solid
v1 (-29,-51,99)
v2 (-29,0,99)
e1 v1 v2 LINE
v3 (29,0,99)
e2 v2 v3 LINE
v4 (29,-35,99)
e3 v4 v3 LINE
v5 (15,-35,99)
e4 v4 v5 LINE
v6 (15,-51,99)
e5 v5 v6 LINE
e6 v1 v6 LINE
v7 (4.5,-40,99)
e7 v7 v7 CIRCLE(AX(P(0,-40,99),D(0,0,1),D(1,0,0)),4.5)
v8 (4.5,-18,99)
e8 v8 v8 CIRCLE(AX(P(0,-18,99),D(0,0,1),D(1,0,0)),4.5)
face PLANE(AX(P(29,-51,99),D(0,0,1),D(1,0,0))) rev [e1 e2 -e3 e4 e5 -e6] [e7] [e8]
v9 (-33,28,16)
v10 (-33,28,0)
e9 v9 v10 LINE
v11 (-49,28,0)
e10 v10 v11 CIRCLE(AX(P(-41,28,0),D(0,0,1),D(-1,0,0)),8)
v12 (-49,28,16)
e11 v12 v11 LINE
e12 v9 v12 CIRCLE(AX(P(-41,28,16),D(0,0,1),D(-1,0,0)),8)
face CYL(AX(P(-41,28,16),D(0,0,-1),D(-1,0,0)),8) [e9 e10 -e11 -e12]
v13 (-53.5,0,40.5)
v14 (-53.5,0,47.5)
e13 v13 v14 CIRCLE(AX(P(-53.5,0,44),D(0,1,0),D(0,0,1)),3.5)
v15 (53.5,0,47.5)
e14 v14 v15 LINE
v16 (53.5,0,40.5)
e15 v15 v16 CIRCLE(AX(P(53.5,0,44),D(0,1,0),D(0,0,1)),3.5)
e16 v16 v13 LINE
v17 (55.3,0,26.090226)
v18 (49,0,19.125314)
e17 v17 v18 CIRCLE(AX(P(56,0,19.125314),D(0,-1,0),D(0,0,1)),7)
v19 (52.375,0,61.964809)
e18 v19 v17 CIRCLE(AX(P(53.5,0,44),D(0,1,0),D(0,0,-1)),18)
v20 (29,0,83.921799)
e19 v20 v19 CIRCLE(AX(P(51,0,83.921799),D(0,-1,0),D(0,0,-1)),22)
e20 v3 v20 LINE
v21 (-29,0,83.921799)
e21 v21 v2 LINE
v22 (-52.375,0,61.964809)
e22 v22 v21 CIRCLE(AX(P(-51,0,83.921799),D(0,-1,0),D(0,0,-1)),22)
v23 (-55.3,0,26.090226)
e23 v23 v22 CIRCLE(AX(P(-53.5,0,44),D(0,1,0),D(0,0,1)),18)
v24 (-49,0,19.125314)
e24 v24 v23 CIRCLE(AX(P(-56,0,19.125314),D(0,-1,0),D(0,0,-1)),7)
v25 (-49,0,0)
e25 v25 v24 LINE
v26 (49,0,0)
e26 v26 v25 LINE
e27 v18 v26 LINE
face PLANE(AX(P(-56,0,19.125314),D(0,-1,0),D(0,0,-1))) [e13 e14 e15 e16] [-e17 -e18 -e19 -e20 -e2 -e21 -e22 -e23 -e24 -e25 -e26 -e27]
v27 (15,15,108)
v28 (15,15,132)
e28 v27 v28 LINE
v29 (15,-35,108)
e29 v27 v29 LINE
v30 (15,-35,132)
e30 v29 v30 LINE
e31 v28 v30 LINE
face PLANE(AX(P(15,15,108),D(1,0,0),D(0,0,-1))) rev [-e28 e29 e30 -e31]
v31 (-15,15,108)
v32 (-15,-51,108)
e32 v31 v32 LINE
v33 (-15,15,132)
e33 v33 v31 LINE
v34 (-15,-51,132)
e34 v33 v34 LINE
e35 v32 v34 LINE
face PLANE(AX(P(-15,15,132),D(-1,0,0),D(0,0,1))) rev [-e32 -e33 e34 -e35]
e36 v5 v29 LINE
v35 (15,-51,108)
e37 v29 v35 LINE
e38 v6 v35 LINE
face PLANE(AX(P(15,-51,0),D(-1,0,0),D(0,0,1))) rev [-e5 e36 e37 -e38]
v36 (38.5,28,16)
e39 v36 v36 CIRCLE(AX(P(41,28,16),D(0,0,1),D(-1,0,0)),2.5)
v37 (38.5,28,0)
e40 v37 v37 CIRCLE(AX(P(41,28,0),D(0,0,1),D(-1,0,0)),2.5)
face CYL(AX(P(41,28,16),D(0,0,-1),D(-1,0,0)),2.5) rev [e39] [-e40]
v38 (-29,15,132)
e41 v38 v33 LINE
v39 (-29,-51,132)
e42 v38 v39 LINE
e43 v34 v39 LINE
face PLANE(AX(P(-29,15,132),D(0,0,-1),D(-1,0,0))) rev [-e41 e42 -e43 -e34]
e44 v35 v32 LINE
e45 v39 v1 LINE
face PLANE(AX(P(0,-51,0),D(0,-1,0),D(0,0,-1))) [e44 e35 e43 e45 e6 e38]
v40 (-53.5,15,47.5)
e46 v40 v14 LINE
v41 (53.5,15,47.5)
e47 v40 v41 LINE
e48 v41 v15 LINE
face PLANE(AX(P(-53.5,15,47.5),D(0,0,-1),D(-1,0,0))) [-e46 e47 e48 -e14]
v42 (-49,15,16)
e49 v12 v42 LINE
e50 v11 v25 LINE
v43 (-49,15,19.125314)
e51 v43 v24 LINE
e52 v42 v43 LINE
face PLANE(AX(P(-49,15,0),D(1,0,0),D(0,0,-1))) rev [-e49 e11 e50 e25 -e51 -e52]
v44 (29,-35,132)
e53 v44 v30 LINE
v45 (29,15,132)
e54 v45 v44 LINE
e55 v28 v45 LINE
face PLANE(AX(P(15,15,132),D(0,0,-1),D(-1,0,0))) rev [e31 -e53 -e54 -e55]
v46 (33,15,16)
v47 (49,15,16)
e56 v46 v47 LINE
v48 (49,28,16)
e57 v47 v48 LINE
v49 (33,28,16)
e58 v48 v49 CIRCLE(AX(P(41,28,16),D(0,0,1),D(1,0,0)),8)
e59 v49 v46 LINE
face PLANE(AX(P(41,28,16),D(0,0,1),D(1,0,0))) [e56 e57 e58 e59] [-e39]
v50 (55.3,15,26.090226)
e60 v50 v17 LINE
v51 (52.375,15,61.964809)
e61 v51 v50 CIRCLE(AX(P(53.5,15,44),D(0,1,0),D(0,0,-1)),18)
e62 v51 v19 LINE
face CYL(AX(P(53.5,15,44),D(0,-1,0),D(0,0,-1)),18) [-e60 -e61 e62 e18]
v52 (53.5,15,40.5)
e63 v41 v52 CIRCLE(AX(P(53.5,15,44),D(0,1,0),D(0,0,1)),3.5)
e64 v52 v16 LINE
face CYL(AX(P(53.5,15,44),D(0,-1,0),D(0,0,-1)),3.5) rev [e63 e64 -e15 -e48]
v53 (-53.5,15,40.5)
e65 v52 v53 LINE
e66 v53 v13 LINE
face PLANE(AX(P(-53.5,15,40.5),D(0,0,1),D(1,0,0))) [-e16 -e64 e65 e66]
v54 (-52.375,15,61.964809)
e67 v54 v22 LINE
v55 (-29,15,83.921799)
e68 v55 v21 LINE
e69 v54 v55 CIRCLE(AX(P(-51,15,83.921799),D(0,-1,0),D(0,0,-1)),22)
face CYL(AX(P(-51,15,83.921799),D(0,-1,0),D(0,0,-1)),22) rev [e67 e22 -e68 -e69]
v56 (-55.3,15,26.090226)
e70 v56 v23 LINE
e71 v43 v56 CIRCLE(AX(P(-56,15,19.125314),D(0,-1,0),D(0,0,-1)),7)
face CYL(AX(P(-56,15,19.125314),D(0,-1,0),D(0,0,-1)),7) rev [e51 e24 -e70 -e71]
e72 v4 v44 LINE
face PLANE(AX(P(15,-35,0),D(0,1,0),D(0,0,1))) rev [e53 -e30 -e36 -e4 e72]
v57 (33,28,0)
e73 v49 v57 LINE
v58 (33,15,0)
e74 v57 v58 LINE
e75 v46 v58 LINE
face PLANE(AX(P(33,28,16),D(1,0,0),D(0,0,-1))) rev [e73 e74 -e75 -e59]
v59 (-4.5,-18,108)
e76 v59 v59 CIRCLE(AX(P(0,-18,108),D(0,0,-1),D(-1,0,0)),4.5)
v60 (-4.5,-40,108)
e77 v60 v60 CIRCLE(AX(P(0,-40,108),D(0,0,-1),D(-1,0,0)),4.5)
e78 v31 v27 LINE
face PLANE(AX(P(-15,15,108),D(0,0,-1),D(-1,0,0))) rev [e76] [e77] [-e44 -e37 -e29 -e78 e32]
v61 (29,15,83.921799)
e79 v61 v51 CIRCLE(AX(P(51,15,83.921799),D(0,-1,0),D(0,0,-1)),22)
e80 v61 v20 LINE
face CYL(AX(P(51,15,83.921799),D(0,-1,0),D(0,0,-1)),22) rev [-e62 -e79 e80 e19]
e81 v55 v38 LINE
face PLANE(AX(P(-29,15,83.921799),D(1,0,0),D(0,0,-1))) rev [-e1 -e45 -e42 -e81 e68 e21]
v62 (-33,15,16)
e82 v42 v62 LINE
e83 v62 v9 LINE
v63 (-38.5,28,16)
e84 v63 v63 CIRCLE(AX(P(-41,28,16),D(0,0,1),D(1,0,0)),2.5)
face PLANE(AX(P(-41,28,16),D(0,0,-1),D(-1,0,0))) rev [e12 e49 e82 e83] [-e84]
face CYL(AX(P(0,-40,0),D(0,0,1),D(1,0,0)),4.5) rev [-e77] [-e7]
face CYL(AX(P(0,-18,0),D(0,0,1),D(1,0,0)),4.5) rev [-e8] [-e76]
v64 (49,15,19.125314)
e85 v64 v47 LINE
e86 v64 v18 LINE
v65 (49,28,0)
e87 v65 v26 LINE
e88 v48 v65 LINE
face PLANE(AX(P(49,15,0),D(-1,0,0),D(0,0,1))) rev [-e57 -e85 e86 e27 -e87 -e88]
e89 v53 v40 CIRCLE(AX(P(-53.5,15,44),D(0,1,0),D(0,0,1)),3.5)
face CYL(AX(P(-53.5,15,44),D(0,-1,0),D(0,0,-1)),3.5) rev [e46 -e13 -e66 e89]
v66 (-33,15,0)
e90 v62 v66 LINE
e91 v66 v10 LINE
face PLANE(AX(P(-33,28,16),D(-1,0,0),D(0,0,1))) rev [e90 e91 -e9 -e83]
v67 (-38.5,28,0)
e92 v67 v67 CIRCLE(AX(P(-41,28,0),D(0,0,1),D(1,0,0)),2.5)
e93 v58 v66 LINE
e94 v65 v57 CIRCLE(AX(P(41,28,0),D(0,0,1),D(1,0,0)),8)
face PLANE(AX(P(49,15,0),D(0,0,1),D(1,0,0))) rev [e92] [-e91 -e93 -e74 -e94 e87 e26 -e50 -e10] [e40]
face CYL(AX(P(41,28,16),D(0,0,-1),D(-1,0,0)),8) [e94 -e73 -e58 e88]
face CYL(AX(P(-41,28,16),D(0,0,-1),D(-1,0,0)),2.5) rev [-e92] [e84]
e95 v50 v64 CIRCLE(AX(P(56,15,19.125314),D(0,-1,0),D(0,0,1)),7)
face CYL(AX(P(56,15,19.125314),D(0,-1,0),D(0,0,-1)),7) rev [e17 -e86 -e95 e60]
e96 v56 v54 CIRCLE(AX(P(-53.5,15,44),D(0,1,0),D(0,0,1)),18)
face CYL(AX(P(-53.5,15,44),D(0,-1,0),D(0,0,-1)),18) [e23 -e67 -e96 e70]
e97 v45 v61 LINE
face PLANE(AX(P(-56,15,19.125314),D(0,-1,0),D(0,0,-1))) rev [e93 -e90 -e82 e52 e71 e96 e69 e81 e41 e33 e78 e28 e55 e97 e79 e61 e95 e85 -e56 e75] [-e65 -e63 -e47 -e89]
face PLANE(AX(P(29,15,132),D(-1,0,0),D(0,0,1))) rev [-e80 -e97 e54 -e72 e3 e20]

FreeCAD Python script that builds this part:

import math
import FreeCAD as App
import Part
import Sketcher

doc = App.newDocument("Part")
body = doc.addObject("PartDesign::Body", "Body")

sketch1 = body.newObject("Sketcher::SketchObject", "Sketch")
sketch1.AttachmentSupport = (doc.getObject("XZ_Plane"), [""])
sketch1.MapMode = "FlatFace"
sketch1.addGeometry(Part.LineSegment(App.Vector(49, 0, 0), App.Vector(-49, 0, 0)), False)
sketch1.addGeometry(Part.LineSegment(App.Vector(-49, 0, 0), App.Vector(-49, 19.1, 0)), False)
sketch1.addGeometry(Part.ArcOfCircle(Part.Circle(App.Vector(-56, 19.1, 0), App.Vector(0, 0, 1), 7), math.radians(0), math.radians(84)), False)
sketch1.addGeometry(Part.ArcOfCircle(Part.Circle(App.Vector(-53.5, 44, 0), App.Vector(0, 0, 1), 18), math.radians(86), math.radians(264)), False)
sketch1.addGeometry(Part.ArcOfCircle(Part.Circle(App.Vector(-51, 83.9, 0), App.Vector(0, 0, 1), 22), math.radians(-94), math.radians(0)), False)
sketch1.addGeometry(Part.LineSegment(App.Vector(-29, 83.9, 0), App.Vector(-29, 132, 0)), False)
sketch1.addGeometry(Part.LineSegment(App.Vector(-29, 132, 0), App.Vector(-15, 132, 0)), False)
sketch1.addGeometry(Part.LineSegment(App.Vector(-15, 132, 0), App.Vector(-15, 108, 0)), False)
sketch1.addGeometry(Part.LineSegment(App.Vector(-15, 108, 0), App.Vector(15, 108, 0)), False)
sketch1.addGeometry(Part.LineSegment(App.Vector(15, 108, 0), App.Vector(15, 132, 0)), False)
sketch1.addGeometry(Part.LineSegment(App.Vector(15, 132, 0), App.Vector(29, 132, 0)), False)
sketch1.addGeometry(Part.LineSegment(App.Vector(29, 132, 0), App.Vector(29, 83.9, 0)), False)
sketch1.addGeometry(Part.ArcOfCircle(Part.Circle(App.Vector(51, 83.9, 0), App.Vector(0, 0, 1), 22), math.radians(180), math.radians(274)), False)
sketch1.addGeometry(Part.ArcOfCircle(Part.Circle(App.Vector(53.5, 44, 0), App.Vector(0, 0, 1), 18), math.radians(-84), math.radians(94)), False)
sketch1.addGeometry(Part.ArcOfCircle(Part.Circle(App.Vector(56, 19.1, 0), App.Vector(0, 0, 1), 7), math.radians(96), math.radians(180)), False)
sketch1.addGeometry(Part.LineSegment(App.Vector(49, 19.1, 0), App.Vector(49, 0, 0)), False)
sketch1.addGeometry(Part.ArcOfCircle(Part.Circle(App.Vector(-53.5, 44, 0), App.Vector(0, 0, 1), 3.5), math.radians(90), math.radians(270)), False)
sketch1.addGeometry(Part.LineSegment(App.Vector(-53.5, 40.5, 0), App.Vector(53.5, 40.5, 0)), False)
sketch1.addGeometry(Part.ArcOfCircle(Part.Circle(App.Vector(53.5, 44, 0), App.Vector(0, 0, 1), 3.5), math.radians(-90), math.radians(90)), False)
sketch1.addGeometry(Part.LineSegment(App.Vector(53.5, 47.5, 0), App.Vector(-53.5, 47.5, 0)), False)
sketch1.addConstraint(Sketcher.Constraint("Coincident", 0, 2, 1, 1))
sketch1.addConstraint(Sketcher.Constraint("Tangent", 1, 2, 2, 1))
sketch1.addConstraint(Sketcher.Constraint("Tangent", 2, 2, 3, 2))
sketch1.addConstraint(Sketcher.Constraint("Tangent", 3, 1, 4, 1))
sketch1.addConstraint(Sketcher.Constraint("Tangent", 4, 2, 5, 1))
sketch1.addConstraint(Sketcher.Constraint("Coincident", 5, 2, 6, 1))
sketch1.addConstraint(Sketcher.Constraint("Coincident", 6, 2, 7, 1))
sketch1.addConstraint(Sketcher.Constraint("Coincident", 7, 2, 8, 1))
sketch1.addConstraint(Sketcher.Constraint("Coincident", 8, 2, 9, 1))
sketch1.addConstraint(Sketcher.Constraint("Coincident", 9, 2, 10, 1))
sketch1.addConstraint(Sketcher.Constraint("Coincident", 10, 2, 11, 1))
sketch1.addConstraint(Sketcher.Constraint("Tangent", 11, 2, 12, 1))
sketch1.addConstraint(Sketcher.Constraint("Tangent", 12, 2, 13, 2))
sketch1.addConstraint(Sketcher.Constraint("Tangent", 13, 1, 14, 1))
sketch1.addConstraint(Sketcher.Constraint("Tangent", 14, 2, 15, 1))
sketch1.addConstraint(Sketcher.Constraint("Coincident", 15, 2, 0, 1))
sketch1.addConstraint(Sketcher.Constraint("Tangent", 16, 2, 17, 1))
sketch1.addConstraint(Sketcher.Constraint("Tangent", 17, 2, 18, 1))
sketch1.addConstraint(Sketcher.Constraint("Tangent", 18, 2, 19, 1))
sketch1.addConstraint(Sketcher.Constraint("Tangent", 19, 2, 16, 1))
sketch1.addConstraint(Sketcher.Constraint("Horizontal", 0))
sketch1.addConstraint(Sketcher.Constraint("Vertical", 1))
sketch1.addConstraint(Sketcher.Constraint("Vertical", 5))
sketch1.addConstraint(Sketcher.Constraint("Horizontal", 6))
sketch1.addConstraint(Sketcher.Constraint("Vertical", 7))
sketch1.addConstraint(Sketcher.Constraint("Horizontal", 8))
sketch1.addConstraint(Sketcher.Constraint("Vertical", 9))
sketch1.addConstraint(Sketcher.Constraint("Horizontal", 10))
sketch1.addConstraint(Sketcher.Constraint("Vertical", 11))
sketch1.addConstraint(Sketcher.Constraint("Vertical", 15))
sketch1.addConstraint(Sketcher.Constraint("Horizontal", 17))
sketch1.addConstraint(Sketcher.Constraint("Horizontal", 19))
sketch1.addConstraint(Sketcher.Constraint("Coincident", 16, 3, 3, 3))
sketch1.addConstraint(Sketcher.Constraint("Coincident", 18, 3, 13, 3))
sketch1.addConstraint(Sketcher.Constraint("Equal", 4, 12))
sketch1.addConstraint(Sketcher.Constraint("Equal", 3, 13))
sketch1.addConstraint(Sketcher.Constraint("Equal", 2, 14))
sketch1.addConstraint(Sketcher.Constraint("Symmetric", 0, 2, 15, 2, -1, 1))
sketch1.addConstraint(Sketcher.Constraint("Symmetric", 4, 3, 12, 3, -2))
sketch1.addConstraint(Sketcher.Constraint("Symmetric", 6, 2, 9, 2, -2))
sketch1.addConstraint(Sketcher.Constraint("Radius", 2, 7.0))
sketch1.addConstraint(Sketcher.Constraint("Radius", 3, 18.0))
sketch1.addConstraint(Sketcher.Constraint("Radius", 4, 22.0))
sketch1.addConstraint(Sketcher.Constraint("Radius", 16, 3.5))
sketch1.addConstraint(Sketcher.Constraint("DistanceX", 0, 2, 0, 1, 98.0))
sketch1.addConstraint(Sketcher.Constraint("DistanceX", 6, 1, 6, 2, 14.0))
sketch1.addConstraint(Sketcher.Constraint("DistanceX", 8, 1, 8, 2, 30.0))
sketch1.addConstraint(Sketcher.Constraint("DistanceX", 17, 1, 17, 2, 107.0))
sketch1.addConstraint(Sketcher.Constraint("DistanceY", 7, 2, 7, 1, 24.0))
sketch1.addConstraint(Sketcher.Constraint("DistanceY", -1, 1, 3, 3, 44.0))
sketch1.addConstraint(Sketcher.Constraint("DistanceY", -1, 1, 5, 2, 132.0))
pad1 = body.newObject("PartDesign::Pad", "Pad")
pad1.Profile = sketch1
pad1.Length = 15
pad1.Reversed = True

sketch2 = body.newObject("Sketcher::SketchObject", "Sketch001")
sketch2.AttachmentSupport = (doc.getObject("XY_Plane"), [""])
sketch2.MapMode = "FlatFace"
sketch2.addGeometry(Part.LineSegment(App.Vector(-49, 28, 0), App.Vector(-49, 15, 0)), False)
sketch2.addGeometry(Part.LineSegment(App.Vector(-49, 15, 0), App.Vector(-33, 15, 0)), False)
sketch2.addGeometry(Part.LineSegment(App.Vector(-33, 15, 0), App.Vector(-33, 28, 0)), False)
sketch2.addGeometry(Part.ArcOfCircle(Part.Circle(App.Vector(-41, 28, 0), App.Vector(0, 0, 1), 8), math.radians(0), math.radians(180)), False)
sketch2.addGeometry(Part.Circle(App.Vector(-41, 28, 0), App.Vector(0, 0, 1), 2.5), False)
sketch2.addGeometry(Part.LineSegment(App.Vector(33, 15, 0), App.Vector(49, 15, 0)), False)
sketch2.addGeometry(Part.LineSegment(App.Vector(49, 15, 0), App.Vector(49, 28, 0)), False)
sketch2.addGeometry(Part.ArcOfCircle(Part.Circle(App.Vector(41, 28, 0), App.Vector(0, 0, 1), 8), math.radians(0), math.radians(180)), False)
sketch2.addGeometry(Part.LineSegment(App.Vector(33, 28, 0), App.Vector(33, 15, 0)), False)
sketch2.addGeometry(Part.Circle(App.Vector(41, 28, 0), App.Vector(0, 0, 1), 2.5), False)
sketch2.addConstraint(Sketcher.Constraint("Coincident", 0, 2, 1, 1))
sketch2.addConstraint(Sketcher.Constraint("Coincident", 1, 2, 2, 1))
sketch2.addConstraint(Sketcher.Constraint("Tangent", 2, 2, 3, 1))
sketch2.addConstraint(Sketcher.Constraint("Tangent", 3, 2, 0, 1))
sketch2.addConstraint(Sketcher.Constraint("Coincident", 5, 2, 6, 1))
sketch2.addConstraint(Sketcher.Constraint("Tangent", 6, 2, 7, 1))
sketch2.addConstraint(Sketcher.Constraint("Tangent", 7, 2, 8, 1))
sketch2.addConstraint(Sketcher.Constraint("Coincident", 8, 2, 5, 1))
sketch2.addConstraint(Sketcher.Constraint("Vertical", 0))
sketch2.addConstraint(Sketcher.Constraint("Horizontal", 1))
sketch2.addConstraint(Sketcher.Constraint("Vertical", 2))
sketch2.addConstraint(Sketcher.Constraint("Horizontal", 5))
sketch2.addConstraint(Sketcher.Constraint("Vertical", 6))
sketch2.addConstraint(Sketcher.Constraint("Vertical", 8))
sketch2.addConstraint(Sketcher.Constraint("Coincident", 4, 3, 3, 3))
sketch2.addConstraint(Sketcher.Constraint("Coincident", 9, 3, 7, 3))
sketch2.addConstraint(Sketcher.Constraint("Equal", 3, 7))
sketch2.addConstraint(Sketcher.Constraint("Equal", 4, 9))
sketch2.addConstraint(Sketcher.Constraint("Symmetric", 3, 3, 7, 3, -2))
sketch2.addConstraint(Sketcher.Constraint("Horizontal", 1, 2, 5, 2))
sketch2.addConstraint(Sketcher.Constraint("Diameter", 4, 5.0))
sketch2.addConstraint(Sketcher.Constraint("Radius", 3, 8.0))
sketch2.addConstraint(Sketcher.Constraint("DistanceY", 0, 2, 0, 1, 13.0))
sketch2.addConstraint(Sketcher.Constraint("DistanceX", 3, 3, -1, 1, 41.0))
sketch2.addConstraint(Sketcher.Constraint("DistanceY", -1, 1, 3, 3, 28.0))
pad2 = body.newObject("PartDesign::Pad", "Pad001")
pad2.Profile = sketch2
pad2.Length = 16

sketch3 = body.newObject("Sketcher::SketchObject", "Sketch002")
sketch3.AttachmentSupport = (doc.getObject("XZ_Plane"), [""])
sketch3.MapMode = "FlatFace"
sketch3.addGeometry(Part.LineSegment(App.Vector(15, 108, 0), App.Vector(-15, 108, 0)), False)
sketch3.addGeometry(Part.LineSegment(App.Vector(-15, 108, 0), App.Vector(-15, 132, 0)), False)
sketch3.addGeometry(Part.LineSegment(App.Vector(-15, 132, 0), App.Vector(-29, 132, 0)), False)
sketch3.addGeometry(Part.LineSegment(App.Vector(-29, 132, 0), App.Vector(-29, 99, 0)), False)
sketch3.addGeometry(Part.LineSegment(App.Vector(-29, 99, 0), App.Vector(29, 99, 0)), False)
sketch3.addGeometry(Part.LineSegment(App.Vector(29, 99, 0), App.Vector(29, 132, 0)), False)
sketch3.addGeometry(Part.LineSegment(App.Vector(29, 132, 0), App.Vector(15, 132, 0)), False)
sketch3.addGeometry(Part.LineSegment(App.Vector(15, 132, 0), App.Vector(15, 108, 0)), False)
sketch3.addConstraint(Sketcher.Constraint("Coincident", 0, 2, 1, 1))
sketch3.addConstraint(Sketcher.Constraint("Coincident", 1, 2, 2, 1))
sketch3.addConstraint(Sketcher.Constraint("Coincident", 2, 2, 3, 1))
sketch3.addConstraint(Sketcher.Constraint("Coincident", 3, 2, 4, 1))
sketch3.addConstraint(Sketcher.Constraint("Coincident", 4, 2, 5, 1))
sketch3.addConstraint(Sketcher.Constraint("Coincident", 5, 2, 6, 1))
sketch3.addConstraint(Sketcher.Constraint("Coincident", 6, 2, 7, 1))
sketch3.addConstraint(Sketcher.Constraint("Coincident", 7, 2, 0, 1))
sketch3.addConstraint(Sketcher.Constraint("Horizontal", 0))
sketch3.addConstraint(Sketcher.Constraint("Vertical", 1))
sketch3.addConstraint(Sketcher.Constraint("Horizontal", 2))
sketch3.addConstraint(Sketcher.Constraint("Vertical", 3))
sketch3.addConstraint(Sketcher.Constraint("Horizontal", 4))
sketch3.addConstraint(Sketcher.Constraint("Vertical", 5))
sketch3.addConstraint(Sketcher.Constraint("Horizontal", 6))
sketch3.addConstraint(Sketcher.Constraint("Vertical", 7))
sketch3.addConstraint(Sketcher.Constraint("Symmetric", 2, 2, 5, 2, -2))
sketch3.addConstraint(Sketcher.Constraint("Equal", 2, 6))
sketch3.addConstraint(Sketcher.Constraint("DistanceX", 0, 2, 0, 1, 30.0))
sketch3.addConstraint(Sketcher.Constraint("DistanceX", 2, 2, 2, 1, 14.0))
sketch3.addConstraint(Sketcher.Constraint("DistanceY", 1, 1, 1, 2, 24.0))
sketch3.addConstraint(Sketcher.Constraint("DistanceY", 3, 2, 3, 1, 33.0))
sketch3.addConstraint(Sketcher.Constraint("DistanceY", -1, 1, 0, 2, 108.0))
pad3 = body.newObject("PartDesign::Pad", "Pad002")
pad3.Profile = sketch3
pad3.Length = 51

sketch4 = body.newObject("Sketcher::SketchObject", "Sketch003")
sketch4.AttachmentSupport = (doc.getObject("XY_Plane"), [""])
sketch4.MapMode = "FlatFace"
sketch4.AttachmentOffset = App.Placement(App.Vector(0, 0, 108), App.Rotation())
sketch4.addGeometry(Part.Circle(App.Vector(0, -18, 0), App.Vector(0, 0, 1), 4.5), False)
sketch4.addGeometry(Part.Circle(App.Vector(0, -40, 0), App.Vector(0, 0, 1), 4.5), False)
sketch4.addGeometry(Part.LineSegment(App.Vector(15, -35, 0), App.Vector(15, -51, 0)), False)
sketch4.addGeometry(Part.LineSegment(App.Vector(15, -51, 0), App.Vector(29, -51, 0)), False)
sketch4.addGeometry(Part.LineSegment(App.Vector(29, -51, 0), App.Vector(29, -35, 0)), False)
sketch4.addGeometry(Part.LineSegment(App.Vector(29, -35, 0), App.Vector(15, -35, 0)), False)
sketch4.addConstraint(Sketcher.Constraint("Coincident", 2, 2, 3, 1))
sketch4.addConstraint(Sketcher.Constraint("Coincident", 3, 2, 4, 1))
sketch4.addConstraint(Sketcher.Constraint("Coincident", 4, 2, 5, 1))
sketch4.addConstraint(Sketcher.Constraint("Coincident", 5, 2, 2, 1))
sketch4.addConstraint(Sketcher.Constraint("Vertical", 2))
sketch4.addConstraint(Sketcher.Constraint("Horizontal", 3))
sketch4.addConstraint(Sketcher.Constraint("Vertical", 4))
sketch4.addConstraint(Sketcher.Constraint("Horizontal", 5))
sketch4.addConstraint(Sketcher.Constraint("Equal", 0, 1))
sketch4.addConstraint(Sketcher.Constraint("PointOnObject", 0, 3, -2))
sketch4.addConstraint(Sketcher.Constraint("PointOnObject", 1, 3, -2))
sketch4.addConstraint(Sketcher.Constraint("Diameter", 0, 9.0))
sketch4.addConstraint(Sketcher.Constraint("DistanceX", 3, 1, 3, 2, 14.0))
sketch4.addConstraint(Sketcher.Constraint("DistanceY", 2, 2, 2, 1, 16.0))
sketch4.addConstraint(Sketcher.Constraint("DistanceY", 0, 3, -1, 1, 18.0))
sketch4.addConstraint(Sketcher.Constraint("DistanceY", 1, 3, -1, 1, 40.0))
sketch4.addConstraint(Sketcher.Constraint("DistanceX", -1, 1, 2, 2, 15.0))
sketch4.addConstraint(Sketcher.Constraint("DistanceY", 2, 2, -1, 1, 51.0))
pocket1 = body.newObject("PartDesign::Pocket", "Pocket")
pocket1.Profile = sketch4
pocket1.Type = "ThroughAll"
pocket1.Midplane = True

doc.recompute()
